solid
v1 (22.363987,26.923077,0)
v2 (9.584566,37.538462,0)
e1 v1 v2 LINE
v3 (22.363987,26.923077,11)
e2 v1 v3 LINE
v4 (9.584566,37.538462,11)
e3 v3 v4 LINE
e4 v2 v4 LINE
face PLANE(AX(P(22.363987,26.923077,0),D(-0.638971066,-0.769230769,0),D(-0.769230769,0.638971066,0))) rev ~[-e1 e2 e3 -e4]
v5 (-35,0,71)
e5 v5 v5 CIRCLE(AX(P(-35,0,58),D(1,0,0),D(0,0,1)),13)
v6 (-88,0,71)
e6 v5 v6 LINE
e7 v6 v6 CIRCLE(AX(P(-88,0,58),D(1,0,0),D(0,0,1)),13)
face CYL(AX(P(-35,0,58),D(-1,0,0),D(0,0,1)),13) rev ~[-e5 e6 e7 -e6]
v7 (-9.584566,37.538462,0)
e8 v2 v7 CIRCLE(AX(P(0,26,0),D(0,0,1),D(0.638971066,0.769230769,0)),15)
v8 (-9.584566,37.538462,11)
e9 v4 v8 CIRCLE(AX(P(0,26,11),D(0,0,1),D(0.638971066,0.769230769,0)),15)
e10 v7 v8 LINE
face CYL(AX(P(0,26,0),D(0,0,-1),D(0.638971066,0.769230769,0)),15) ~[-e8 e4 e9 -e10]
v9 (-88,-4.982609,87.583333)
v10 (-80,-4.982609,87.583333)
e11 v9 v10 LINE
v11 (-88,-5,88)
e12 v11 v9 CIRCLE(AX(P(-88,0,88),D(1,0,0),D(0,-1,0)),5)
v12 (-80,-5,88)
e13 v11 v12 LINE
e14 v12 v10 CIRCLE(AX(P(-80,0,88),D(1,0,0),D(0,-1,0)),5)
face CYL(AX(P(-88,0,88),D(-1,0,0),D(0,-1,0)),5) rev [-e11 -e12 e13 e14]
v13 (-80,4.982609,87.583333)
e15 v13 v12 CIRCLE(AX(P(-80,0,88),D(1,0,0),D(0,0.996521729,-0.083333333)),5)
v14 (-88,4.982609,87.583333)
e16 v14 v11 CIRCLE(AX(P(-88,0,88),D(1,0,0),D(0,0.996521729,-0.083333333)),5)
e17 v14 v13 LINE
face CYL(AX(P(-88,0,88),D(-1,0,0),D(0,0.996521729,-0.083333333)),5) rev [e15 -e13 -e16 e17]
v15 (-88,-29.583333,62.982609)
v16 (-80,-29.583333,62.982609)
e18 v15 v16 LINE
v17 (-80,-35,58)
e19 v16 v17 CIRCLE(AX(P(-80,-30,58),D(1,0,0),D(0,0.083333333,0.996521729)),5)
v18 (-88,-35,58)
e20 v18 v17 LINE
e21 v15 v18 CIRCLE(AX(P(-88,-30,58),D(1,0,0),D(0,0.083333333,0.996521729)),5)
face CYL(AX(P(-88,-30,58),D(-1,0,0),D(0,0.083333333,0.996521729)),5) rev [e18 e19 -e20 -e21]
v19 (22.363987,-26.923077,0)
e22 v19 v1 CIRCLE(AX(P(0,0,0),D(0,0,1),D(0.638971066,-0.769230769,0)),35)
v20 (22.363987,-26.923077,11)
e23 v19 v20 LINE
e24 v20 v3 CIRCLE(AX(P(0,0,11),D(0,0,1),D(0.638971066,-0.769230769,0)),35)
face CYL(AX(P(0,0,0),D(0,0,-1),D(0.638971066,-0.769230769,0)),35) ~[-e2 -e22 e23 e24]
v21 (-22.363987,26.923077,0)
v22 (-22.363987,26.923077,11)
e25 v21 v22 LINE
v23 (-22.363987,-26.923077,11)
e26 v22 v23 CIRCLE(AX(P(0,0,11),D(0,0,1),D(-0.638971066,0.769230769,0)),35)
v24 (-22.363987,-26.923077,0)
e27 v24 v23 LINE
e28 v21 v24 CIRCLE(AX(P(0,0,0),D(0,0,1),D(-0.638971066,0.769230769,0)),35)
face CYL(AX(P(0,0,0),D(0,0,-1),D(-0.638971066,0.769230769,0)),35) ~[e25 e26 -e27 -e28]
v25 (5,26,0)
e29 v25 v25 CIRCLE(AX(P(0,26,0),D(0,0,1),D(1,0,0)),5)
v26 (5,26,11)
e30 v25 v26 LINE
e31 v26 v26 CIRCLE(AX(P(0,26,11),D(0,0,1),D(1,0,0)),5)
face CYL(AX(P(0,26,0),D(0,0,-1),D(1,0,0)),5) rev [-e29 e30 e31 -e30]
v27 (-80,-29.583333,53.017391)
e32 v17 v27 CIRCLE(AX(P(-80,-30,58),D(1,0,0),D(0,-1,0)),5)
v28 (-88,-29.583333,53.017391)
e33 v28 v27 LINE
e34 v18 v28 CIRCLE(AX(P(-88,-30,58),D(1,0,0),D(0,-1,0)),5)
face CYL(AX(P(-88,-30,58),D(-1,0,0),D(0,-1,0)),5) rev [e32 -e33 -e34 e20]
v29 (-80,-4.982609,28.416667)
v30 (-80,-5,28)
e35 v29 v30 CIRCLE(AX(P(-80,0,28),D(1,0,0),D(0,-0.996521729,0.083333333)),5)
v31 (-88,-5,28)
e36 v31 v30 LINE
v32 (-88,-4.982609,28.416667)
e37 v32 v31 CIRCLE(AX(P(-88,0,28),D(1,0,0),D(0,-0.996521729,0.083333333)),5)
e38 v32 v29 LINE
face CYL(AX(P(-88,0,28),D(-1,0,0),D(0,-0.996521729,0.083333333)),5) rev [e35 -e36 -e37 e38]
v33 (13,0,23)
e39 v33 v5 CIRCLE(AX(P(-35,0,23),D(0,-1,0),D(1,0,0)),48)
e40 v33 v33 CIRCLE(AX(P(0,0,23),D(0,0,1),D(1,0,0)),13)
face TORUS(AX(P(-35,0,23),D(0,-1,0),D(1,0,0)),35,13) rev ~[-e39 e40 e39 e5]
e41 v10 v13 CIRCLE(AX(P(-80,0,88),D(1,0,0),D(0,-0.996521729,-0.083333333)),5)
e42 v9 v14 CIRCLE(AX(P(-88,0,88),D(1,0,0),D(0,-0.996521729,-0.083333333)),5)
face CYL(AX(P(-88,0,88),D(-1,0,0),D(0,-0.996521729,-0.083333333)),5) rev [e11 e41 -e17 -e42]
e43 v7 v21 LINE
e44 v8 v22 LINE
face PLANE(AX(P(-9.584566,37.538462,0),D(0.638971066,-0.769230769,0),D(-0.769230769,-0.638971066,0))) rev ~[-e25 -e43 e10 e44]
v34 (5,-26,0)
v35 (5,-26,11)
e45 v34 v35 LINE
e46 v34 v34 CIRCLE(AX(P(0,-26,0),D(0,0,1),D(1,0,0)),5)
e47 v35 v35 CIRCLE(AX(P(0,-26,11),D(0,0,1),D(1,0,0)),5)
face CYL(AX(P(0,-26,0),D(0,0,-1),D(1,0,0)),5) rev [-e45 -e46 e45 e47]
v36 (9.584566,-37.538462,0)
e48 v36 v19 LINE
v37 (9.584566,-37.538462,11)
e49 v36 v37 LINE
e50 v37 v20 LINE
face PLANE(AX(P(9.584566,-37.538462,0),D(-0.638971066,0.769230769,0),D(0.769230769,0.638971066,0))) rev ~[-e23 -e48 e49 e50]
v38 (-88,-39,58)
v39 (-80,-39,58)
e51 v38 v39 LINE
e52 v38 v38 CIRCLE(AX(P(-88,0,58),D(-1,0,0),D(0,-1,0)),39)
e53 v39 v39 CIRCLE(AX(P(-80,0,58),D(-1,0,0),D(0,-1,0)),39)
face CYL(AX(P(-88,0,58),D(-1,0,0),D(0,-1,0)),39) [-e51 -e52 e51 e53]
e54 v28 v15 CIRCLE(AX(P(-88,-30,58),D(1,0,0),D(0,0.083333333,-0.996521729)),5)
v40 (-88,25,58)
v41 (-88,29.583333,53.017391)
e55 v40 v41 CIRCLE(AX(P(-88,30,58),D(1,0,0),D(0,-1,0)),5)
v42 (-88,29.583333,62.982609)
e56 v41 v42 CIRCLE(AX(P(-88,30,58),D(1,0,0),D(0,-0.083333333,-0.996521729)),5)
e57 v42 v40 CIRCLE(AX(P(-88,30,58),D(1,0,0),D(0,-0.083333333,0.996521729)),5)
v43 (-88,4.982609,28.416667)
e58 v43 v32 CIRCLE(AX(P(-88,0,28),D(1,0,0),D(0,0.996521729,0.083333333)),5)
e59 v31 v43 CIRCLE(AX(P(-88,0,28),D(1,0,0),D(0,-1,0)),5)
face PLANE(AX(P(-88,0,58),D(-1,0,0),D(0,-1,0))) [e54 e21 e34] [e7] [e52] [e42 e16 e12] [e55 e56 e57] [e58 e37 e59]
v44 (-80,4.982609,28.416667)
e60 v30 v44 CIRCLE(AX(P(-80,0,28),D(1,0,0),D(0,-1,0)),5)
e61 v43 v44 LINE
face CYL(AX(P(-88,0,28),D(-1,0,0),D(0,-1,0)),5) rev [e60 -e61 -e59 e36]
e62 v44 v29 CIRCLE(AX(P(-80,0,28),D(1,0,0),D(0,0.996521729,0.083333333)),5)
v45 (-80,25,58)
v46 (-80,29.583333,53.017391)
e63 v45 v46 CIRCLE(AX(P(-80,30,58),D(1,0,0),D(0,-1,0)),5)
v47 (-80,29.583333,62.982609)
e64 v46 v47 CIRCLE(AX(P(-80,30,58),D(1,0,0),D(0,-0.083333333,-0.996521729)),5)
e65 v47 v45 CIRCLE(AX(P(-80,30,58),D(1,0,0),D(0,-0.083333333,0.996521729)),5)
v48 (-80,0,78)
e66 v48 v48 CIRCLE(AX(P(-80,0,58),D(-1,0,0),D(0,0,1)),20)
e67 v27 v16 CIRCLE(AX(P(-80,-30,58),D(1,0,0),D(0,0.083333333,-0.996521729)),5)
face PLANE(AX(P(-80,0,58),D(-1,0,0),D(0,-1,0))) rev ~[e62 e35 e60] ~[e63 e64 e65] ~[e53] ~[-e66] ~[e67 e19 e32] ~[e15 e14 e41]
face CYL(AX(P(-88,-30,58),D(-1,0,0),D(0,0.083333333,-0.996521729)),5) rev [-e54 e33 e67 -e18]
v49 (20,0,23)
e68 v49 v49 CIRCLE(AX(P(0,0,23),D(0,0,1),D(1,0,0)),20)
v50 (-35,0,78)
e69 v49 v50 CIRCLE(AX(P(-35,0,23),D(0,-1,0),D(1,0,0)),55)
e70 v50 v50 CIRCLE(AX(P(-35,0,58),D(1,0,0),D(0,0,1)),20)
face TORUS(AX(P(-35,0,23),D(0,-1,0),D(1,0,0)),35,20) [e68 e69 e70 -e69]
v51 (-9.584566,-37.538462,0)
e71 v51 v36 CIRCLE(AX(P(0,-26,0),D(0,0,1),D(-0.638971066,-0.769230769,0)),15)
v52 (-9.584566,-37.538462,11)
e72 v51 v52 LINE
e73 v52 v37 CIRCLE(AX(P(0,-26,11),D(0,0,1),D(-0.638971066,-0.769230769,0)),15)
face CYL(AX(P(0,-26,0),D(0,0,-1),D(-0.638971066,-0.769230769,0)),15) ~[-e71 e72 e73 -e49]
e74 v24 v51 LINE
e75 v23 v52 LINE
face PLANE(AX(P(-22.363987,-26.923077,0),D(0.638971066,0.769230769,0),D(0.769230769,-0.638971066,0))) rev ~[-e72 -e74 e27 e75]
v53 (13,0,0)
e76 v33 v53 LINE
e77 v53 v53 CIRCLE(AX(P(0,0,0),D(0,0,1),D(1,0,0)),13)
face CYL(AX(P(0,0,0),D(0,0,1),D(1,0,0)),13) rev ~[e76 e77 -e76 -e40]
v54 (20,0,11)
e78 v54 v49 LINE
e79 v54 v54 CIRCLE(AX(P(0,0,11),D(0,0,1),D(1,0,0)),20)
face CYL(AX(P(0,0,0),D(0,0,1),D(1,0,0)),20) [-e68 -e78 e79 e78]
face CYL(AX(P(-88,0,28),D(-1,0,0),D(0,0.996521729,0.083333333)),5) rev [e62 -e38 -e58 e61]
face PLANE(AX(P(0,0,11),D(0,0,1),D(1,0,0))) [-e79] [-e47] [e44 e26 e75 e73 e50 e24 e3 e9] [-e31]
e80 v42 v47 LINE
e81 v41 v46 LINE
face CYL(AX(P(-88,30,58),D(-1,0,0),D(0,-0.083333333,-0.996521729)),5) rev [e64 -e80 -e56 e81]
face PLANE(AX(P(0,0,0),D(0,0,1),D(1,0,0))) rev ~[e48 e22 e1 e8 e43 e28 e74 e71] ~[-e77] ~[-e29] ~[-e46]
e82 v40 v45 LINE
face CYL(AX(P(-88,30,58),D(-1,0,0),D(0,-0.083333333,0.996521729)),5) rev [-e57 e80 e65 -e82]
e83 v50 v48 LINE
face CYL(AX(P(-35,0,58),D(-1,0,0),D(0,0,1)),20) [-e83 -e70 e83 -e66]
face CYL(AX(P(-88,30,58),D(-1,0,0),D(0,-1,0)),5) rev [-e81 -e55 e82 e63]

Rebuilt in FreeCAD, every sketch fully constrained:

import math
import FreeCAD as App
import Part
import Sketcher
Q = App.Units.Quantity

doc = App.newDocument("Part")
params = doc.addObject("Spreadsheet::Sheet", "Params")
for row, (alias, value) in enumerate([
    ("sketch1_diameter", "40 mm"),
    ("sketch1_diameter2", "26 mm"),
    ("sketch2_radius", "35 mm"),
    ("sketch2_width", "53 mm"),
    ("sketch2_height", "23 mm"),
    ("sketch3_diameter", "78 mm"),
    ("sketch3_diameter2", "26 mm"),
    ("sketch3_radius", "5 mm"),
    ("pad1_length", "8 mm"),
    ("sketch4_diameter", "10 mm"),
    ("sketch4_diameter2", "26 mm"),
    ("sketch4_radius", "15 mm"),
    ("sketch4_radius2", "35 mm"),
    ("pad2_length", "11 mm"),
], start=1):
    params.set(f"A{row}", alias)
    params.set(f"B{row}", "=" + value)
    params.setAlias(f"B{row}", alias)

body = doc.addObject("PartDesign::Body", "Body")

# Sketch on XY plane
sketch1 = body.newObject("Sketcher::SketchObject", "Sketch")
sketch1.AttachmentSupport = (doc.getObject("XY_Plane"), [""])
sketch1.MapMode = "FlatFace"
sketch1.addGeometry([
    Part.Circle(App.Vector(0, 0, 0), App.Vector(0, 0, 1), 20),
    Part.Circle(App.Vector(0, 0, 0), App.Vector(0, 0, 1), 13),
], False)
sketch1.addConstraint([
    Sketcher.Constraint("Coincident", 0, 3, -1, 1),
    Sketcher.Constraint("Coincident", 1, 3, -1, 1),
    Sketcher.Constraint("Diameter", 0, Q("40 mm")),
    Sketcher.Constraint("Diameter", 1, Q("26 mm")),
])
sketch1.setExpression("Constraints[2]", "Params.sketch1_diameter")
sketch1.setExpression("Constraints[3]", "Params.sketch1_diameter2")

# Sketch on XZ plane
sketch2 = body.newObject("Sketcher::SketchObject", "Sketch001")
sketch2.AttachmentSupport = (doc.getObject("XZ_Plane"), [""])
sketch2.MapMode = "FlatFace"
sketch2.addGeometry([
    Part.LineSegment(App.Vector(0, 0, 0), App.Vector(0, 23, 0)),
    Part.ArcOfCircle(Part.Circle(App.Vector(-35, 23, 0), App.Vector(0, 0, 1), 35), math.radians(0), math.radians(90)),
    Part.LineSegment(App.Vector(-35, 58, 0), App.Vector(-88, 58, 0)),
], False)
sketch2.addConstraint([
    Sketcher.Constraint("Tangent", 0, 2, 1, 1),
    Sketcher.Constraint("Tangent", 1, 2, 2, 1),
    Sketcher.Constraint("Vertical", 0),
    Sketcher.Constraint("Horizontal", 2),
    Sketcher.Constraint("Coincident", 0, 1, -1, 1),
    Sketcher.Constraint("Radius", 1, Q("35 mm")),
    Sketcher.Constraint("DistanceX", 2, 2, 2, 1, Q("53 mm")),
    Sketcher.Constraint("DistanceY", 0, 1, 0, 2, Q("23 mm")),
])
sketch2.setExpression("Constraints[5]", "Params.sketch2_radius")
sketch2.setExpression("Constraints[6]", "Params.sketch2_width")
sketch2.setExpression("Constraints[7]", "Params.sketch2_height")
doc.recompute()

additivepipe = body.newObject("PartDesign::AdditivePipe", "AdditivePipe")
additivepipe.Profile = sketch1
additivepipe.Spine = (sketch2, ["Edge1", "Edge2", "Edge3"])

# Sketch on YZ plane
sketch3 = body.newObject("Sketcher::SketchObject", "Sketch002")
sketch3.AttachmentSupport = (doc.getObject("YZ_Plane"), [""])
sketch3.MapMode = "FlatFace"
sketch3.AttachmentOffset = App.Placement(App.Vector(0, 0, -88), App.Rotation())
sketch3.addGeometry([
    Part.Circle(App.Vector(0, 58, 0), App.Vector(0, 0, 1), 39),  # 0
    Part.ArcOfCircle(Part.Circle(App.Vector(0, 28, 0), App.Vector(0, 0, 1), 5), math.radians(180), math.radians(364.780192)),  # 1
    Part.ArcOfCircle(Part.Circle(App.Vector(0, 28, 0), App.Vector(0, 0, 1), 5), math.radians(4.780192), math.radians(175.219808)),  # 2
    Part.ArcOfCircle(Part.Circle(App.Vector(0, 28, 0), App.Vector(0, 0, 1), 5), math.radians(175.219808), math.radians(180)),  # 3
    Part.ArcOfCircle(Part.Circle(App.Vector(30, 58, 0), App.Vector(0, 0, 1), 5), math.radians(-94.780192), math.radians(94.780192)),  # 4
    Part.ArcOfCircle(Part.Circle(App.Vector(30, 58, 0), App.Vector(0, 0, 1), 5), math.radians(94.780192), math.radians(180)),  # 5
    Part.ArcOfCircle(Part.Circle(App.Vector(30, 58, 0), App.Vector(0, 0, 1), 5), math.radians(180), math.radians(265.219808)),  # 6
    Part.ArcOfCircle(Part.Circle(App.Vector(0, 88, 0), App.Vector(0, 0, 1), 5), math.radians(-180), math.radians(-175.219808)),  # 7
    Part.ArcOfCircle(Part.Circle(App.Vector(0, 88, 0), App.Vector(0, 0, 1), 5), math.radians(-175.219808), math.radians(-4.780192)),  # 8
    Part.ArcOfCircle(Part.Circle(App.Vector(0, 88, 0), App.Vector(0, 0, 1), 5), math.radians(-4.780192), math.radians(180)),  # 9
    Part.Circle(App.Vector(0, 58, 0), App.Vector(0, 0, 1), 13),  # 10
    Part.ArcOfCircle(Part.Circle(App.Vector(-30, 58, 0), App.Vector(0, 0, 1), 5), math.radians(180), math.radians(274.780192)),  # 11
    Part.ArcOfCircle(Part.Circle(App.Vector(-30, 58, 0), App.Vector(0, 0, 1), 5), math.radians(-85.219808), math.radians(85.219808)),  # 12
    Part.ArcOfCircle(Part.Circle(App.Vector(-30, 58, 0), App.Vector(0, 0, 1), 5), math.radians(85.219808), math.radians(180)),  # 13
], False)
sketch3.addConstraint([
    Sketcher.Constraint("Tangent", 1, 2, 2, 1),
    Sketcher.Constraint("Tangent", 2, 2, 3, 1),
    Sketcher.Constraint("Tangent", 3, 2, 1, 1),
    Sketcher.Constraint("Tangent", 4, 2, 5, 1),
    Sketcher.Constraint("Tangent", 5, 2, 6, 1),
    Sketcher.Constraint("Tangent", 6, 2, 4, 1),
    Sketcher.Constraint("Tangent", 7, 2, 8, 1),
    Sketcher.Constraint("Tangent", 8, 2, 9, 1),
    Sketcher.Constraint("Tangent", 9, 2, 7, 1),
    Sketcher.Constraint("Tangent", 11, 2, 12, 1),
    Sketcher.Constraint("Tangent", 12, 2, 13, 1),
    Sketcher.Constraint("Tangent", 13, 2, 11, 1),
    Sketcher.Constraint("Coincident", 10, 3, 0, 3),
    Sketcher.Constraint("Equal", 3, 4),
    Sketcher.Constraint("Equal", 6, 7),
    Sketcher.Constraint("Equal", 9, 11),
    Sketcher.Constraint("Symmetric", 4, 3, 11, 3, -2),
    Sketcher.Constraint("Symmetric", 1, 2, 2, 2, -2),
    Sketcher.Constraint("Symmetric", 7, 2, 8, 2, -2),
    Sketcher.Constraint("PointOnObject", 0, 3, -2),
    Sketcher.Constraint("Horizontal", 0, 3, 4, 3),
    Sketcher.Constraint("Horizontal", 2, 3, 3, 2),
    Sketcher.Constraint("Horizontal", 13, 3, 5, 2),
    Sketcher.Constraint("Horizontal", 8, 3, 9, 2),
    Sketcher.Constraint("Horizontal", 6, 2, 11, 2),
    Sketcher.Constraint("Horizontal", 4, 2, 12, 2),
    Sketcher.Constraint("Horizontal", 5, 2, 13, 2),
    Sketcher.Constraint("Vertical", 4, 2, 6, 2),
    Sketcher.Constraint("Vertical", 2, 2, 7, 2),
    Sketcher.Constraint("Diameter", 0, Q("78 mm")),
    Sketcher.Constraint("Diameter", 10, Q("26 mm")),
    Sketcher.Constraint("Radius", 1, Q("5 mm")),
    Sketcher.Constraint("DistanceY", -1, 1, 0, 3, Q("58 mm")),
    Sketcher.Constraint("DistanceY", -1, 1, 1, 3, Q("28 mm")),
    Sketcher.Constraint("DistanceX", -1, 1, 4, 3, Q("30 mm")),
    Sketcher.Constraint("DistanceY", -1, 1, 7, 3, Q("88 mm")),
    Sketcher.Constraint("DistanceX", -1, 1, 1, 2, Q("4.982609 mm")),
    Sketcher.Constraint("DistanceY", -1, 1, 4, 2, Q("62.982609 mm")),
])
sketch3.setExpression("Constraints[29]", "Params.sketch3_diameter")
sketch3.setExpression("Constraints[30]", "Params.sketch3_diameter2")
sketch3.setExpression("Constraints[31]", "Params.sketch3_radius")
pad1 = body.newObject("PartDesign::Pad", "Pad")
pad1.Profile = sketch3
pad1.setExpression("Length", "Params.pad1_length")

# Sketch on XY plane
sketch4 = body.newObject("Sketcher::SketchObject", "Sketch003")
sketch4.AttachmentSupport = (doc.getObject("XY_Plane"), [""])
sketch4.MapMode = "FlatFace"
sketch4.addGeometry([
    Part.LineSegment(App.Vector(22.363987, 26.923077, 0), App.Vector(9.584566, 37.538462, 0)),  # 0
    Part.ArcOfCircle(Part.Circle(App.Vector(0, 26, 0), App.Vector(0, 0, 1), 15), math.radians(50.284863), math.radians(129.715137)),  # 1
    Part.LineSegment(App.Vector(-9.584566, 37.538462, 0), App.Vector(-22.363987, 26.923077, 0)),  # 2
    Part.ArcOfCircle(Part.Circle(App.Vector(0, 0, 0), App.Vector(0, 0, 1), 35), math.radians(129.715137), math.radians(230.284863)),  # 3
    Part.LineSegment(App.Vector(-22.363987, -26.923077, 0), App.Vector(-9.584566, -37.538462, 0)),  # 4
    Part.ArcOfCircle(Part.Circle(App.Vector(0, -26, 0), App.Vector(0, 0, 1), 15), math.radians(-129.715137), math.radians(-50.284863)),  # 5
    Part.LineSegment(App.Vector(9.584566, -37.538462, 0), App.Vector(22.363987, -26.923077, 0)),  # 6
    Part.ArcOfCircle(Part.Circle(App.Vector(0, 0, 0), App.Vector(0, 0, 1), 35), math.radians(-50.284863), math.radians(50.284863)),  # 7
    Part.Circle(App.Vector(0, -26, 0), App.Vector(0, 0, 1), 5),  # 8
    Part.Circle(App.Vector(0, 0, 0), App.Vector(0, 0, 1), 13),  # 9
    Part.Circle(App.Vector(0, 26, 0), App.Vector(0, 0, 1), 5),  # 10
], False)
sketch4.addConstraint([
    Sketcher.Constraint("Tangent", 0, 2, 1, 1),
    Sketcher.Constraint("Tangent", 1, 2, 2, 1),
    Sketcher.Constraint("Tangent", 2, 2, 3, 1),
    Sketcher.Constraint("Tangent", 3, 2, 4, 1),
    Sketcher.Constraint("Tangent", 4, 2, 5, 1),
    Sketcher.Constraint("Tangent", 5, 2, 6, 1),
    Sketcher.Constraint("Tangent", 6, 2, 7, 1),
    Sketcher.Constraint("Tangent", 7, 2, 0, 1),
    Sketcher.Constraint("Coincident", 3, 3, -1, 1),
    Sketcher.Constraint("Coincident", 7, 3, -1, 1),
    Sketcher.Constraint("Coincident", 9, 3, -1, 1),
    Sketcher.Constraint("Coincident", 8, 3, 5, 3),
    Sketcher.Constraint("Coincident", 10, 3, 1, 3),
    Sketcher.Constraint("Equal", 1, 5),
    Sketcher.Constraint("Equal", 3, 7),
    Sketcher.Constraint("Equal", 8, 10),
    Sketcher.Constraint("Symmetric", 1, 3, 5, 3, -1, 1),
    Sketcher.Constraint("PointOnObject", 1, 3, -2),
    Sketcher.Constraint("Diameter", 8, Q("10 mm")),
    Sketcher.Constraint("Diameter", 9, Q("26 mm")),
    Sketcher.Constraint("Radius", 1, Q("15 mm")),
    Sketcher.Constraint("Radius", 3, Q("35 mm")),
    Sketcher.Constraint("DistanceY", -1, 1, 1, 3, Q("26 mm")),
])
sketch4.setExpression("Constraints[18]", "Params.sketch4_diameter")
sketch4.setExpression("Constraints[19]", "Params.sketch4_diameter2")
sketch4.setExpression("Constraints[20]", "Params.sketch4_radius")
sketch4.setExpression("Constraints[21]", "Params.sketch4_radius2")
pad2 = body.newObject("PartDesign::Pad", "Pad001")
pad2.Profile = sketch4
pad2.setExpression("Length", "Params.pad2_length")

doc.recompute()
